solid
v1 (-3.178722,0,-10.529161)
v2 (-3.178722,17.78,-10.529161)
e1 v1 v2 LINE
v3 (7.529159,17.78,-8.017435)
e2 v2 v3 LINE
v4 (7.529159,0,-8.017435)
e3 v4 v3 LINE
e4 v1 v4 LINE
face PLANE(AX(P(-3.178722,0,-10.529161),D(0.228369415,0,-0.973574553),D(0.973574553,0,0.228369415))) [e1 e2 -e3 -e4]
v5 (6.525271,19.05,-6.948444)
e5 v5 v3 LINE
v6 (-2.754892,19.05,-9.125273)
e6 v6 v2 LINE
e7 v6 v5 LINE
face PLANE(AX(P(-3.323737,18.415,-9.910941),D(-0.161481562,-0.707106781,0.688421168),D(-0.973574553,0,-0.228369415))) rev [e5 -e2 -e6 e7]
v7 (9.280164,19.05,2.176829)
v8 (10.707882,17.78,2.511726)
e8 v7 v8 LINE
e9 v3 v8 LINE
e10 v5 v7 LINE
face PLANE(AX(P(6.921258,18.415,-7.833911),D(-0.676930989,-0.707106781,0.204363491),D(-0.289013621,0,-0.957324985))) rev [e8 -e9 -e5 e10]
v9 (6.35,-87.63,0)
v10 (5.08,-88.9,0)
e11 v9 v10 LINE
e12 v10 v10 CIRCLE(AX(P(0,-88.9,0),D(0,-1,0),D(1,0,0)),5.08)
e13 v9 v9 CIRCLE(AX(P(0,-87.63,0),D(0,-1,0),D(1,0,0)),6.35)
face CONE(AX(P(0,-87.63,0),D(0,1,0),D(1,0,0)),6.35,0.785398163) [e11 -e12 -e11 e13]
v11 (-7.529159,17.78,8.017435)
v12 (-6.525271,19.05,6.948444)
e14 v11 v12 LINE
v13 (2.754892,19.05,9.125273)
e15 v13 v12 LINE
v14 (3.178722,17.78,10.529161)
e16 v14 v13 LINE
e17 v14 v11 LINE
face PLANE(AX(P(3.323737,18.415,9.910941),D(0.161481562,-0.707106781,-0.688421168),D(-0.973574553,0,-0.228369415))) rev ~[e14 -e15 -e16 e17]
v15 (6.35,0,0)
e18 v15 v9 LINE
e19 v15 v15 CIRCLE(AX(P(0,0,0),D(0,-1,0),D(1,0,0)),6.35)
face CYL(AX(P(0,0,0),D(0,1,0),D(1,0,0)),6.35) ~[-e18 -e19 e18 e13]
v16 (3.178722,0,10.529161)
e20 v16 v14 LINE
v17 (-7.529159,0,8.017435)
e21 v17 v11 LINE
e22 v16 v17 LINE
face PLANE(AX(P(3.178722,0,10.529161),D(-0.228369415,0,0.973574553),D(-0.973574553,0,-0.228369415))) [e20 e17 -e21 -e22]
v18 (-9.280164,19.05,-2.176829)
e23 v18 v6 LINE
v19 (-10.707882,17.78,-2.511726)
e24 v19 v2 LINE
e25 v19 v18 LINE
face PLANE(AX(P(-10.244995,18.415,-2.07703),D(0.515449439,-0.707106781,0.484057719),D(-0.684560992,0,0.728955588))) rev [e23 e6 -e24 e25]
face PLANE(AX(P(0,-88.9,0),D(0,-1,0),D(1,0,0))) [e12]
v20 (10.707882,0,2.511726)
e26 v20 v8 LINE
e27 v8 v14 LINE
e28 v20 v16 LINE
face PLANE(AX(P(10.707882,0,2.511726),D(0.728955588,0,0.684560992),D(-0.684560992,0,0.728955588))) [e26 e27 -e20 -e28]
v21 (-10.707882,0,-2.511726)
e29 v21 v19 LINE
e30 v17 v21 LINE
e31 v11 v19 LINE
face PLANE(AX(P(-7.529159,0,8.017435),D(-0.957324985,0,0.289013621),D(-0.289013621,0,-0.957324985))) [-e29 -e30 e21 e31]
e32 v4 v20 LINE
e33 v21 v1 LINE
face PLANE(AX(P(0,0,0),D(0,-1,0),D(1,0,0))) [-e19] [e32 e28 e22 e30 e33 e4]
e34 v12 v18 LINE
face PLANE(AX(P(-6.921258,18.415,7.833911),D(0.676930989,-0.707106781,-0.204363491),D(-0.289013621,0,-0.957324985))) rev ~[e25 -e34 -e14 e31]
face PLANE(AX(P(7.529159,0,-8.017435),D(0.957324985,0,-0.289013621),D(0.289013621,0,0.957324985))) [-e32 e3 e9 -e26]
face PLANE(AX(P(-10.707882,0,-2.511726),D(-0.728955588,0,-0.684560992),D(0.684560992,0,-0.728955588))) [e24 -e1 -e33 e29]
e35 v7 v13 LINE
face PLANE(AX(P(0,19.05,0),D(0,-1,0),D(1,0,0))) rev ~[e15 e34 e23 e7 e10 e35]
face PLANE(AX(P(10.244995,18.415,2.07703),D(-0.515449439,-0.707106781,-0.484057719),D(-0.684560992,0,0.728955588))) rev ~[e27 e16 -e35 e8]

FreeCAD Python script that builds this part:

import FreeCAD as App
import Part
import Sketcher

V = App.Vector
Q = App.Units.Quantity


def edges_at(feature, points):
    """Names of the edges that pass closest to the given points."""
    edges = feature.Shape.Edges
    near = lambda p: min(range(len(edges)), key=lambda i: edges[i].distToShape(Part.Vertex(*p))[0])
    return sorted({f"Edge{near(p) + 1}" for p in points})


def add_polygon(sketch, points):
    """Adds a closed chain of lines whose ends are joined by coincident constraints."""
    first, n = sketch.GeometryCount, len(points)
    for a, b in zip(points, points[1:] + points[:1]):
        sketch.addGeometry(Part.LineSegment(App.Vector(*a, 0), App.Vector(*b, 0)), False)
    for i in range(n):
        sketch.addConstraint(Sketcher.Constraint("Coincident", first + i, 2, first + (i + 1) % n, 1))

doc = App.newDocument("Part")
params = doc.addObject("Spreadsheet::Sheet", "Params")
for row, (alias, value) in enumerate([
    ("pad1_length", "0.75 in"),
    ("sketch2_diameter", "0.5 in"),
    ("pad2_length", "3.5 in"),
    ("chamfer_size", "0.05 in"),
], start=1):
    params.set(f"A{row}", alias)
    params.set(f"B{row}", "=" + value)
    params.setAlias(f"B{row}", alias)

body = doc.addObject("PartDesign::Body", "Body")

sketch1 = body.newObject("Sketcher::SketchObject", "Sketch")
sketch1.AttachmentSupport = (doc.getObject("XZ_Plane"), [""])
sketch1.MapMode = "FlatFace"
add_polygon(sketch1, [(3.178722, 10.529161), (-7.529159, 8.017435), (-10.707882, -2.511726), (-3.178722, -10.529161), (7.529159, -8.017435), (10.707882, 2.511726)])
sketch1.addConstraint(Sketcher.Constraint("Symmetric", 0, 2, 3, 2, -1, 1))
sketch1.addConstraint(Sketcher.Constraint("Symmetric", 1, 2, 4, 2, -1, 1))
sketch1.addConstraint(Sketcher.Constraint("Symmetric", 2, 2, 5, 2, -1, 1))
sketch1.addConstraint(Sketcher.Constraint("Equal", 0, 1))
sketch1.addConstraint(Sketcher.Constraint("Equal", 1, 2))
sketch1.addConstraint(Sketcher.Constraint("Distance", 0, Q("10.998522 mm")))
sketch1.addConstraint(Sketcher.Constraint("DistanceX", 0, 2, -1, 1, Q("7.529159 mm")))
sketch1.addConstraint(Sketcher.Constraint("DistanceX", 2, 2, -1, 1, Q("3.178722 mm")))
sketch1.addConstraint(Sketcher.Constraint("DistanceY", 2, 2, -1, 1, Q("10.529161 mm")))
pad1 = body.newObject("PartDesign::Pad", "Pad")
pad1.Profile = sketch1
pad1.setExpression("Length", "Params.pad1_length")
pad1.Reversed = True

sketch2 = body.newObject("Sketcher::SketchObject", "Sketch001")
sketch2.AttachmentSupport = (doc.getObject("XZ_Plane"), [""])
sketch2.MapMode = "FlatFace"
sketch2.addGeometry(Part.Circle(V(0, 0, 0), V(0, 0, 1), 6.35), False)
sketch2.addConstraint(Sketcher.Constraint("Coincident", 0, 3, -1, 1))
sketch2.addConstraint(Sketcher.Constraint("Diameter", 0, Q("0.5 in")))
sketch2.setExpression("Constraints[1]", "Params.sketch2_diameter")
pad2 = body.newObject("PartDesign::Pad", "Pad001")
pad2.Profile = sketch2
pad2.setExpression("Length", "Params.pad2_length")
doc.recompute()

chamfer = body.newObject("PartDesign::Chamfer", "Chamfer")
chamfer.Base = (pad2, edges_at(pad2, [
    (-6.35, -88.9, 0),
    (-9.119, 19.05, 2.753),
    (-2.175, 19.05, 9.273),
    (-6.943, 19.05, -6.52),
    (2.175, 19.05, -9.273),
    (9.119, 19.05, -2.753),
    (6.943, 19.05, 6.52),
]))
chamfer.setExpression("Size", "Params.chamfer_size")

doc.recompute()
